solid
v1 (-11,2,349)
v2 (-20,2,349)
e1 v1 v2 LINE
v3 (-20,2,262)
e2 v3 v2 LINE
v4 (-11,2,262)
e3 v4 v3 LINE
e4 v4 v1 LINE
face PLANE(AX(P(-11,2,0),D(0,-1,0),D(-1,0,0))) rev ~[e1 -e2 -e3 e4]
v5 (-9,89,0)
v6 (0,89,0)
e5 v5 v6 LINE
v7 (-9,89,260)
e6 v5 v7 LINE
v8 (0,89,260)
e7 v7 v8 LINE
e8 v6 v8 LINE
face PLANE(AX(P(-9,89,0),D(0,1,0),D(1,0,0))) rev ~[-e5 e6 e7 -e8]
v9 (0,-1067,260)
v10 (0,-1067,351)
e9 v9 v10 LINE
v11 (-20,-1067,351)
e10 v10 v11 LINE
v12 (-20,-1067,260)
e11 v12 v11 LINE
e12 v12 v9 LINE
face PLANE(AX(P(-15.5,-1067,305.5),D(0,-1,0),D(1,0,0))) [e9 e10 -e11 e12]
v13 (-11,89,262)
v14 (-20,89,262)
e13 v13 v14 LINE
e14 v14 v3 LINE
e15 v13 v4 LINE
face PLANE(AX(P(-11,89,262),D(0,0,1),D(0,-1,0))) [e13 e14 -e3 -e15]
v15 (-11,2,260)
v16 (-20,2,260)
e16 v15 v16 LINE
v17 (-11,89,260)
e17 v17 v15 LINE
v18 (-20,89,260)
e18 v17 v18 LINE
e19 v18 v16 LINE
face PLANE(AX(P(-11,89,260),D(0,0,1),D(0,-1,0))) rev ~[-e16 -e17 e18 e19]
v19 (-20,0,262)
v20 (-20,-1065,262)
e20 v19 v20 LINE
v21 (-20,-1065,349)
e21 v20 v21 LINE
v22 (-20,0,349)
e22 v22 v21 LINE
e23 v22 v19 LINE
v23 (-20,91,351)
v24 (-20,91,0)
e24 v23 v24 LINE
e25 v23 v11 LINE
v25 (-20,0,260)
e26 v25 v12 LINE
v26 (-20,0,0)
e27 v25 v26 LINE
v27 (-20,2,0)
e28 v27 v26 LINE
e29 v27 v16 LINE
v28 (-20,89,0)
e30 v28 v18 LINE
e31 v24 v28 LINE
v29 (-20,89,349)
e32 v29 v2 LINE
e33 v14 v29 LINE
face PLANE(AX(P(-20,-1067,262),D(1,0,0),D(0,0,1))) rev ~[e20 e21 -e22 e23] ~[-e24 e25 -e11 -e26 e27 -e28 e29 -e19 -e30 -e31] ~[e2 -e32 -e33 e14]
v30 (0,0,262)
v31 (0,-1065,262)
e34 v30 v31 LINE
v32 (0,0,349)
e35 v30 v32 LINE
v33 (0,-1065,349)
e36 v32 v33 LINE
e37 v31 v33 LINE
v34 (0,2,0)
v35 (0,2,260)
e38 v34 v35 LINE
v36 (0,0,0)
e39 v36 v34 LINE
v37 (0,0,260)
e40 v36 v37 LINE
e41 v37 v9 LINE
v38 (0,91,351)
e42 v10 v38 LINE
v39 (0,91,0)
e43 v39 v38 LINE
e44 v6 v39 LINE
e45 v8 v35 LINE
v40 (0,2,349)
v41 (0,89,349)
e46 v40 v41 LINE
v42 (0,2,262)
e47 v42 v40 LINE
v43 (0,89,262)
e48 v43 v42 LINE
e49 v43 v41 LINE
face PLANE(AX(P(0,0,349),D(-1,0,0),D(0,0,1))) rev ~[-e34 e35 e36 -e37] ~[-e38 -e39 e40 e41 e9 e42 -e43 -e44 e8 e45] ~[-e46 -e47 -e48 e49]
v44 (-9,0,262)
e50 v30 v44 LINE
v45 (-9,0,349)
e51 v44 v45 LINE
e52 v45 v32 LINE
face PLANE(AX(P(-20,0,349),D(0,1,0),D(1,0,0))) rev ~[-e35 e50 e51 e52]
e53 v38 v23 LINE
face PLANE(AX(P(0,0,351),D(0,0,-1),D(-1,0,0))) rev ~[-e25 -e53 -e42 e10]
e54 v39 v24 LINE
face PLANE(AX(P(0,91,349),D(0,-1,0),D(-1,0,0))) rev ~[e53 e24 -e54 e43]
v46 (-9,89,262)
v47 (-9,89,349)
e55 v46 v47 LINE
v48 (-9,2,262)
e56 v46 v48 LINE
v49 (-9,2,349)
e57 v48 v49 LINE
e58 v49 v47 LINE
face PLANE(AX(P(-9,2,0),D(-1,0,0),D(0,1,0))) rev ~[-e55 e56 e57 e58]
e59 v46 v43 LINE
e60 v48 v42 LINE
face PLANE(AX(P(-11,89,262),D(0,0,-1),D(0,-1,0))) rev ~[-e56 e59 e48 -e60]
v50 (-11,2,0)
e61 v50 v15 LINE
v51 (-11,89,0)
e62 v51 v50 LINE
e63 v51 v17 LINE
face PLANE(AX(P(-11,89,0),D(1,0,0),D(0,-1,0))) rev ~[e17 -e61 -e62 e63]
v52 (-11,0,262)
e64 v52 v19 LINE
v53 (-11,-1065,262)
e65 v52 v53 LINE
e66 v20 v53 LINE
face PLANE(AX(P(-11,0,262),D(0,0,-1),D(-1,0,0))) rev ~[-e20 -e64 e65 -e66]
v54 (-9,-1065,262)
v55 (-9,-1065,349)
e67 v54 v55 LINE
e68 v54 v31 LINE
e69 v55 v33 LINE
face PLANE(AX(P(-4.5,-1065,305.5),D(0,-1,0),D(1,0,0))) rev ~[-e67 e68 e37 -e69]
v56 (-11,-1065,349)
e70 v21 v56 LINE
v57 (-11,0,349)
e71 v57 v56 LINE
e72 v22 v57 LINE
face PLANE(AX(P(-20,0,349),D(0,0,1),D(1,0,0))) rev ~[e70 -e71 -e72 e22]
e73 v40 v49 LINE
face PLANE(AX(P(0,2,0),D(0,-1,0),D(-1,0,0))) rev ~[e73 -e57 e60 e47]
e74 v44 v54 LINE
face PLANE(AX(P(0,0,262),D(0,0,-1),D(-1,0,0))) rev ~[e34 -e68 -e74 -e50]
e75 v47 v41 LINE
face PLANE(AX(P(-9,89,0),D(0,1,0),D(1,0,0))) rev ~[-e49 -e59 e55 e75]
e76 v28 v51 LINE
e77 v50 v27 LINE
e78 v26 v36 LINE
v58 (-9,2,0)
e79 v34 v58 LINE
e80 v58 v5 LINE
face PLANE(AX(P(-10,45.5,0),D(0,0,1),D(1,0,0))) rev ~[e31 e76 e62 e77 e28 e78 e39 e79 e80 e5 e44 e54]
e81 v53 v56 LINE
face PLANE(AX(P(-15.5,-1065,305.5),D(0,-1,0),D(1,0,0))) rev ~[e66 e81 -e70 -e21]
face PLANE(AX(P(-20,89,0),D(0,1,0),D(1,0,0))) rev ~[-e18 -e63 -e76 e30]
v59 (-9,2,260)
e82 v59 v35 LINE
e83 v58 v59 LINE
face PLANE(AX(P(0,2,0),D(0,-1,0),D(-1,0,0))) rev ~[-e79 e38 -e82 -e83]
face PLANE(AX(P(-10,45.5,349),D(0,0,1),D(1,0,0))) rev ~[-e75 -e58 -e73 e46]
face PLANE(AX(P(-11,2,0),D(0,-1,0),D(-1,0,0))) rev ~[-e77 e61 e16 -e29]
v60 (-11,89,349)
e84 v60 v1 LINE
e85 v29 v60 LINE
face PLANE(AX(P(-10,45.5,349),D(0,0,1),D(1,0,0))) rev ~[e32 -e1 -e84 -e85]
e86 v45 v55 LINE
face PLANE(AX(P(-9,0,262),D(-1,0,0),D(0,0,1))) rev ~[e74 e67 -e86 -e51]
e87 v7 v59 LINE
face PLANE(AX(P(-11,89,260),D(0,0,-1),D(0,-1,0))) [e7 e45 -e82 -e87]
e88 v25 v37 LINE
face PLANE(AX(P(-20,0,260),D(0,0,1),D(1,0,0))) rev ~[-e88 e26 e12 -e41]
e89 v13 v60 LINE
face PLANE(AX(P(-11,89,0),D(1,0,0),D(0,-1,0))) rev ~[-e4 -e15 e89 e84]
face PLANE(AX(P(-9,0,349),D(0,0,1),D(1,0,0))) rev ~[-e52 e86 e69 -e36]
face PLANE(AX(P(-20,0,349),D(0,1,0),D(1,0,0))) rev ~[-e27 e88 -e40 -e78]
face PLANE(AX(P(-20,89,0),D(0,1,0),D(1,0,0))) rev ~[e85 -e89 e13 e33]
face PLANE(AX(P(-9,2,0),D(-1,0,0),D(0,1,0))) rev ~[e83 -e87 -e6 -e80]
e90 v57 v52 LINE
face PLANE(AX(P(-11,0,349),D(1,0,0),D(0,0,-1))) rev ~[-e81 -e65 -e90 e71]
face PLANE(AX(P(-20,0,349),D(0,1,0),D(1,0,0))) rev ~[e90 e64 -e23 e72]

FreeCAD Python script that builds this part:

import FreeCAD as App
import Part
import Sketcher

doc = App.newDocument("Part")
params = doc.addObject("Spreadsheet::Sheet", "Params")
for row, (alias, value) in enumerate([
    ("sketch1_width", "20 mm"),
    ("sketch1_width2", "9 mm"),
    ("sketch1_height", "2 mm"),
    ("sketch1_height2", "87 mm"),
    ("pad1_length", "349 mm"),
    ("sketch2_width", "20 mm"),
    ("sketch2_height", "91 mm"),
    ("pad2_length", "2 mm"),
    ("sketch3_width", "87 mm"),
    ("sketch3_height", "2 mm"),
    ("pad3_length", "9 mm"),
    ("sketch4_width", "87 mm"),
    ("sketch4_height", "2 mm"),
    ("pad4_length", "11 mm"),
    ("sketch5_width", "20 mm"),
    ("sketch5_width2", "9 mm"),
    ("sketch5_height", "2 mm"),
    ("sketch5_height2", "87 mm"),
    ("pad5_length", "1067 mm"),
    ("sketch6_width", "9 mm"),
    ("sketch6_height", "87 mm"),
    ("pad6_length", "2 mm"),
], start=1):
    params.set(f"A{row}", alias)
    params.set(f"B{row}", "=" + value)
    params.setAlias(f"B{row}", alias)

body = doc.addObject("PartDesign::Body", "Body")

# Sketch on XY plane
sketch1 = body.newObject("Sketcher::SketchObject", "Sketch")
sketch1.AttachmentSupport = (doc.getObject("XY_Plane"), [""])
sketch1.MapMode = "FlatFace"
sketch1.addGeometry([
    Part.LineSegment(App.Vector(-20, 0, 0), App.Vector(0, 0, 0)),  # 0
    Part.LineSegment(App.Vector(0, 0, 0), App.Vector(0, 2, 0)),  # 1
    Part.LineSegment(App.Vector(0, 2, 0), App.Vector(-9, 2, 0)),  # 2
    Part.LineSegment(App.Vector(-9, 2, 0), App.Vector(-9, 89, 0)),  # 3
    Part.LineSegment(App.Vector(-9, 89, 0), App.Vector(0, 89, 0)),  # 4
    Part.LineSegment(App.Vector(0, 89, 0), App.Vector(0, 91, 0)),  # 5
    Part.LineSegment(App.Vector(0, 91, 0), App.Vector(-20, 91, 0)),  # 6
    Part.LineSegment(App.Vector(-20, 91, 0), App.Vector(-20, 89, 0)),  # 7
    Part.LineSegment(App.Vector(-20, 89, 0), App.Vector(-11, 89, 0)),  # 8
    Part.LineSegment(App.Vector(-11, 89, 0), App.Vector(-11, 2, 0)),  # 9
    Part.LineSegment(App.Vector(-11, 2, 0), App.Vector(-20, 2, 0)),  # 10
    Part.LineSegment(App.Vector(-20, 2, 0), App.Vector(-20, 0, 0)),  # 11
], False)
sketch1.addConstraint([
    Sketcher.Constraint("Coincident", 0, 2, 1, 1),
    Sketcher.Constraint("Coincident", 1, 2, 2, 1),
    Sketcher.Constraint("Coincident", 2, 2, 3, 1),
    Sketcher.Constraint("Coincident", 3, 2, 4, 1),
    Sketcher.Constraint("Coincident", 4, 2, 5, 1),
    Sketcher.Constraint("Coincident", 5, 2, 6, 1),
    Sketcher.Constraint("Coincident", 6, 2, 7, 1),
    Sketcher.Constraint("Coincident", 7, 2, 8, 1),
    Sketcher.Constraint("Coincident", 8, 2, 9, 1),
    Sketcher.Constraint("Coincident", 9, 2, 10, 1),
    Sketcher.Constraint("Coincident", 10, 2, 11, 1),
    Sketcher.Constraint("Coincident", 11, 2, 0, 1),
    Sketcher.Constraint("Horizontal", 0),
    Sketcher.Constraint("Vertical", 1),
    Sketcher.Constraint("Horizontal", 2),
    Sketcher.Constraint("Vertical", 3),
    Sketcher.Constraint("Horizontal", 4),
    Sketcher.Constraint("Vertical", 5),
    Sketcher.Constraint("Horizontal", 6),
    Sketcher.Constraint("Vertical", 7),
    Sketcher.Constraint("Horizontal", 8),
    Sketcher.Constraint("Vertical", 9),
    Sketcher.Constraint("Horizontal", 10),
    Sketcher.Constraint("Vertical", 11),
    Sketcher.Constraint("Coincident", 0, 2, -1, 1),
    Sketcher.Constraint("PointOnObject", 4, 2, -2),
    Sketcher.Constraint("Horizontal", 4, 2, 7, 2),
    Sketcher.Constraint("Horizontal", 2, 2, 9, 2),
    Sketcher.Constraint("Vertical", 7, 2, 10, 2),
    Sketcher.Constraint("Equal", 4, 8),
    Sketcher.Constraint("Equal", 1, 5),
    Sketcher.Constraint("DistanceX", 0, 1, 0, 2, 20.0),
    Sketcher.Constraint("DistanceX", 2, 2, 2, 1, 9.0),
    Sketcher.Constraint("DistanceY", 1, 1, 1, 2, 2.0),
    Sketcher.Constraint("DistanceY", 3, 1, 3, 2, 87.0),
])
sketch1.setExpression("Constraints[31]", "Params.sketch1_width")
sketch1.setExpression("Constraints[32]", "Params.sketch1_width2")
sketch1.setExpression("Constraints[33]", "Params.sketch1_height")
sketch1.setExpression("Constraints[34]", "Params.sketch1_height2")
pad1 = body.newObject("PartDesign::Pad", "Pad")
pad1.Profile = sketch1
pad1.setExpression("Length", "Params.pad1_length")

# Sketch on XY plane
sketch2 = body.newObject("Sketcher::SketchObject", "Sketch001")
sketch2.AttachmentSupport = (doc.getObject("XY_Plane"), [""])
sketch2.MapMode = "FlatFace"
sketch2.AttachmentOffset = App.Placement(App.Vector(0, 0, 349), App.Rotation())
sketch2.addGeometry([
    Part.LineSegment(App.Vector(-20, 0, 0), App.Vector(0, 0, 0)),
    Part.LineSegment(App.Vector(0, 0, 0), App.Vector(0, 91, 0)),
    Part.LineSegment(App.Vector(0, 91, 0), App.Vector(-20, 91, 0)),
    Part.LineSegment(App.Vector(-20, 91, 0), App.Vector(-20, 0, 0)),
], False)
sketch2.addConstraint([
    Sketcher.Constraint("Coincident", 0, 2, 1, 1),
    Sketcher.Constraint("Coincident", 1, 2, 2, 1),
    Sketcher.Constraint("Coincident", 2, 2, 3, 1),
    Sketcher.Constraint("Coincident", 3, 2, 0, 1),
    Sketcher.Constraint("Horizontal", 0),
    Sketcher.Constraint("Vertical", 1),
    Sketcher.Constraint("Horizontal", 2),
    Sketcher.Constraint("Vertical", 3),
    Sketcher.Constraint("Coincident", 0, 2, -1, 1),
    Sketcher.Constraint("DistanceX", 0, 1, 0, 2, 20.0),
    Sketcher.Constraint("DistanceY", 1, 1, 1, 2, 91.0),
])
sketch2.setExpression("Constraints[9]", "Params.sketch2_width")
sketch2.setExpression("Constraints[10]", "Params.sketch2_height")
pad2 = body.newObject("PartDesign::Pad", "Pad001")
pad2.Profile = sketch2
pad2.setExpression("Length", "Params.pad2_length")

# Sketch on YZ plane
sketch3 = body.newObject("Sketcher::SketchObject", "Sketch002")
sketch3.AttachmentSupport = (doc.getObject("YZ_Plane"), [""])
sketch3.MapMode = "FlatFace"
sketch3.AttachmentOffset = App.Placement(App.Vector(0, 0, -11), App.Rotation())
sketch3.addGeometry([
    Part.LineSegment(App.Vector(89, 262, 0), App.Vector(89, 260, 0)),
    Part.LineSegment(App.Vector(89, 260, 0), App.Vector(2, 260, 0)),
    Part.LineSegment(App.Vector(2, 260, 0), App.Vector(2, 262, 0)),
    Part.LineSegment(App.Vector(2, 262, 0), App.Vector(89, 262, 0)),
], False)
sketch3.addConstraint([
    Sketcher.Constraint("Coincident", 0, 2, 1, 1),
    Sketcher.Constraint("Coincident", 1, 2, 2, 1),
    Sketcher.Constraint("Coincident", 2, 2, 3, 1),
    Sketcher.Constraint("Coincident", 3, 2, 0, 1),
    Sketcher.Constraint("Vertical", 0),
    Sketcher.Constraint("Horizontal", 1),
    Sketcher.Constraint("Vertical", 2),
    Sketcher.Constraint("Horizontal", 3),
    Sketcher.Constraint("DistanceX", 1, 2, 1, 1, 87.0),
    Sketcher.Constraint("DistanceY", 0, 2, 0, 1, 2.0),
    Sketcher.Constraint("DistanceX", -1, 1, 0, 2, 89.0),
    Sketcher.Constraint("DistanceY", -1, 1, 0, 2, 260.0),
])
sketch3.setExpression("Constraints[8]", "Params.sketch3_width")
sketch3.setExpression("Constraints[9]", "Params.sketch3_height")
pad3 = body.newObject("PartDesign::Pad", "Pad002")
pad3.Profile = sketch3
pad3.setExpression("Length", "Params.pad3_length")
pad3.Reversed = True

# Sketch on YZ plane
sketch4 = body.newObject("Sketcher::SketchObject", "Sketch003")
sketch4.AttachmentSupport = (doc.getObject("YZ_Plane"), [""])
sketch4.MapMode = "FlatFace"
sketch4.AttachmentOffset = App.Placement(App.Vector(0, 0, -11), App.Rotation())
sketch4.addGeometry([
    Part.LineSegment(App.Vector(89, 262, 0), App.Vector(89, 260, 0)),
    Part.LineSegment(App.Vector(89, 260, 0), App.Vector(2, 260, 0)),
    Part.LineSegment(App.Vector(2, 260, 0), App.Vector(2, 262, 0)),
    Part.LineSegment(App.Vector(2, 262, 0), App.Vector(89, 262, 0)),
], False)
sketch4.addConstraint([
    Sketcher.Constraint("Coincident", 0, 2, 1, 1),
    Sketcher.Constraint("Coincident", 1, 2, 2, 1),
    Sketcher.Constraint("Coincident", 2, 2, 3, 1),
    Sketcher.Constraint("Coincident", 3, 2, 0, 1),
    Sketcher.Constraint("Vertical", 0),
    Sketcher.Constraint("Horizontal", 1),
    Sketcher.Constraint("Vertical", 2),
    Sketcher.Constraint("Horizontal", 3),
    Sketcher.Constraint("DistanceX", 1, 2, 1, 1, 87.0),
    Sketcher.Constraint("DistanceY", 0, 2, 0, 1, 2.0),
    Sketcher.Constraint("DistanceX", -1, 1, 0, 2, 89.0),
    Sketcher.Constraint("DistanceY", -1, 1, 0, 2, 260.0),
])
sketch4.setExpression("Constraints[8]", "Params.sketch4_width")
sketch4.setExpression("Constraints[9]", "Params.sketch4_height")
pad4 = body.newObject("PartDesign::Pad", "Pad003")
pad4.Profile = sketch4
pad4.setExpression("Length", "Params.pad4_length")

# Sketch on XZ plane
sketch5 = body.newObject("Sketcher::SketchObject", "Sketch004")
sketch5.AttachmentSupport = (doc.getObject("XZ_Plane"), [""])
sketch5.MapMode = "FlatFace"
sketch5.addGeometry([
    Part.LineSegment(App.Vector(0, 351, 0), App.Vector(-20, 351, 0)),  # 0
    Part.LineSegment(App.Vector(-20, 351, 0), App.Vector(-20, 349, 0)),  # 1
    Part.LineSegment(App.Vector(-20, 349, 0), App.Vector(-11, 349, 0)),  # 2
    Part.LineSegment(App.Vector(-11, 349, 0), App.Vector(-11, 262, 0)),  # 3
    Part.LineSegment(App.Vector(-11, 262, 0), App.Vector(-20, 262, 0)),  # 4
    Part.LineSegment(App.Vector(-20, 262, 0), App.Vector(-20, 260, 0)),  # 5
    Part.LineSegment(App.Vector(-20, 260, 0), App.Vector(0, 260, 0)),  # 6
    Part.LineSegment(App.Vector(0, 260, 0), App.Vector(0, 262, 0)),  # 7
    Part.LineSegment(App.Vector(0, 262, 0), App.Vector(-9, 262, 0)),  # 8
    Part.LineSegment(App.Vector(-9, 262, 0), App.Vector(-9, 349, 0)),  # 9
    Part.LineSegment(App.Vector(-9, 349, 0), App.Vector(0, 349, 0)),  # 10
    Part.LineSegment(App.Vector(0, 349, 0), App.Vector(0, 351, 0)),  # 11
], False)
sketch5.addConstraint([
    Sketcher.Constraint("Coincident", 0, 2, 1, 1),
    Sketcher.Constraint("Coincident", 1, 2, 2, 1),
    Sketcher.Constraint("Coincident", 2, 2, 3, 1),
    Sketcher.Constraint("Coincident", 3, 2, 4, 1),
    Sketcher.Constraint("Coincident", 4, 2, 5, 1),
    Sketcher.Constraint("Coincident", 5, 2, 6, 1),
    Sketcher.Constraint("Coincident", 6, 2, 7, 1),
    Sketcher.Constraint("Coincident", 7, 2, 8, 1),
    Sketcher.Constraint("Coincident", 8, 2, 9, 1),
    Sketcher.Constraint("Coincident", 9, 2, 10, 1),
    Sketcher.Constraint("Coincident", 10, 2, 11, 1),
    Sketcher.Constraint("Coincident", 11, 2, 0, 1),
    Sketcher.Constraint("Horizontal", 0),
    Sketcher.Constraint("Vertical", 1),
    Sketcher.Constraint("Horizontal", 2),
    Sketcher.Constraint("Vertical", 3),
    Sketcher.Constraint("Horizontal", 4),
    Sketcher.Constraint("Vertical", 5),
    Sketcher.Constraint("Horizontal", 6),
    Sketcher.Constraint("Vertical", 7),
    Sketcher.Constraint("Horizontal", 8),
    Sketcher.Constraint("Vertical", 9),
    Sketcher.Constraint("Horizontal", 10),
    Sketcher.Constraint("Vertical", 11),
    Sketcher.Constraint("PointOnObject", 6, 2, -2),
    Sketcher.Constraint("PointOnObject", 10, 2, -2),
    Sketcher.Constraint("Horizontal", 4, 2, 7, 2),
    Sketcher.Constraint("Horizontal", 2, 2, 9, 2),
    Sketcher.Constraint("Vertical", 1, 2, 4, 2),
    Sketcher.Constraint("Equal", 4, 8),
    Sketcher.Constraint("Equal", 1, 5),
    Sketcher.Constraint("DistanceX", 0, 2, 0, 1, 20.0),
    Sketcher.Constraint("DistanceX", 2, 1, 2, 2, 9.0),
    Sketcher.Constraint("DistanceY", 1, 2, 1, 1, 2.0),
    Sketcher.Constraint("DistanceY", 3, 2, 3, 1, 87.0),
    Sketcher.Constraint("DistanceY", -1, 1, 0, 2, 351.0),
])
sketch5.setExpression("Constraints[31]", "Params.sketch5_width")
sketch5.setExpression("Constraints[32]", "Params.sketch5_width2")
sketch5.setExpression("Constraints[33]", "Params.sketch5_height")
sketch5.setExpression("Constraints[34]", "Params.sketch5_height2")
pad5 = body.newObject("PartDesign::Pad", "Pad004")
pad5.Profile = sketch5
pad5.setExpression("Length", "Params.pad5_length")

# Sketch on XZ plane
sketch6 = body.newObject("Sketcher::SketchObject", "Sketch005")
sketch6.AttachmentSupport = (doc.getObject("XZ_Plane"), [""])
sketch6.MapMode = "FlatFace"
sketch6.AttachmentOffset = App.Placement(App.Vector(0, 0, 1067), App.Rotation())
sketch6.addGeometry([
    Part.LineSegment(App.Vector(-20, 349, 0), App.Vector(-20, 262, 0)),  # 0
    Part.LineSegment(App.Vector(-20, 262, 0), App.Vector(-11, 262, 0)),  # 1
    Part.LineSegment(App.Vector(-11, 262, 0), App.Vector(-11, 349, 0)),  # 2
    Part.LineSegment(App.Vector(-11, 349, 0), App.Vector(-20, 349, 0)),  # 3
    Part.LineSegment(App.Vector(-9, 349, 0), App.Vector(-9, 262, 0)),  # 4
    Part.LineSegment(App.Vector(-9, 262, 0), App.Vector(0, 262, 0)),  # 5
    Part.LineSegment(App.Vector(0, 262, 0), App.Vector(0, 349, 0)),  # 6
    Part.LineSegment(App.Vector(0, 349, 0), App.Vector(-9, 349, 0)),  # 7
], False)
sketch6.addConstraint([
    Sketcher.Constraint("Coincident", 0, 2, 1, 1),
    Sketcher.Constraint("Coincident", 1, 2, 2, 1),
    Sketcher.Constraint("Coincident", 2, 2, 3, 1),
    Sketcher.Constraint("Coincident", 3, 2, 0, 1),
    Sketcher.Constraint("Coincident", 4, 2, 5, 1),
    Sketcher.Constraint("Coincident", 5, 2, 6, 1),
    Sketcher.Constraint("Coincident", 6, 2, 7, 1),
    Sketcher.Constraint("Coincident", 7, 2, 4, 1),
    Sketcher.Constraint("Vertical", 0),
    Sketcher.Constraint("Horizontal", 1),
    Sketcher.Constraint("Vertical", 2),
    Sketcher.Constraint("Horizontal", 3),
    Sketcher.Constraint("Vertical", 4),
    Sketcher.Constraint("Horizontal", 5),
    Sketcher.Constraint("Vertical", 6),
    Sketcher.Constraint("Horizontal", 7),
    Sketcher.Constraint("PointOnObject", 5, 2, -2),
    Sketcher.Constraint("Horizontal", 1, 2, 4, 2),
    Sketcher.Constraint("Horizontal", 3, 2, 6, 2),
    Sketcher.Constraint("Equal", 3, 5),
    Sketcher.Constraint("DistanceX", 1, 1, 1, 2, 9.0),
    Sketcher.Constraint("DistanceY", 0, 2, 0, 1, 87.0),
    Sketcher.Constraint("DistanceX", 0, 2, -1, 1, 20.0),
    Sketcher.Constraint("DistanceY", -1, 1, 0, 2, 262.0),
])
sketch6.setExpression("Constraints[20]", "Params.sketch6_width")
sketch6.setExpression("Constraints[21]", "Params.sketch6_height")
pad6 = body.newObject("PartDesign::Pad", "Pad005")
pad6.Profile = sketch6
pad6.setExpression("Length", "Params.pad6_length")
pad6.Reversed = True

doc.recompute()
